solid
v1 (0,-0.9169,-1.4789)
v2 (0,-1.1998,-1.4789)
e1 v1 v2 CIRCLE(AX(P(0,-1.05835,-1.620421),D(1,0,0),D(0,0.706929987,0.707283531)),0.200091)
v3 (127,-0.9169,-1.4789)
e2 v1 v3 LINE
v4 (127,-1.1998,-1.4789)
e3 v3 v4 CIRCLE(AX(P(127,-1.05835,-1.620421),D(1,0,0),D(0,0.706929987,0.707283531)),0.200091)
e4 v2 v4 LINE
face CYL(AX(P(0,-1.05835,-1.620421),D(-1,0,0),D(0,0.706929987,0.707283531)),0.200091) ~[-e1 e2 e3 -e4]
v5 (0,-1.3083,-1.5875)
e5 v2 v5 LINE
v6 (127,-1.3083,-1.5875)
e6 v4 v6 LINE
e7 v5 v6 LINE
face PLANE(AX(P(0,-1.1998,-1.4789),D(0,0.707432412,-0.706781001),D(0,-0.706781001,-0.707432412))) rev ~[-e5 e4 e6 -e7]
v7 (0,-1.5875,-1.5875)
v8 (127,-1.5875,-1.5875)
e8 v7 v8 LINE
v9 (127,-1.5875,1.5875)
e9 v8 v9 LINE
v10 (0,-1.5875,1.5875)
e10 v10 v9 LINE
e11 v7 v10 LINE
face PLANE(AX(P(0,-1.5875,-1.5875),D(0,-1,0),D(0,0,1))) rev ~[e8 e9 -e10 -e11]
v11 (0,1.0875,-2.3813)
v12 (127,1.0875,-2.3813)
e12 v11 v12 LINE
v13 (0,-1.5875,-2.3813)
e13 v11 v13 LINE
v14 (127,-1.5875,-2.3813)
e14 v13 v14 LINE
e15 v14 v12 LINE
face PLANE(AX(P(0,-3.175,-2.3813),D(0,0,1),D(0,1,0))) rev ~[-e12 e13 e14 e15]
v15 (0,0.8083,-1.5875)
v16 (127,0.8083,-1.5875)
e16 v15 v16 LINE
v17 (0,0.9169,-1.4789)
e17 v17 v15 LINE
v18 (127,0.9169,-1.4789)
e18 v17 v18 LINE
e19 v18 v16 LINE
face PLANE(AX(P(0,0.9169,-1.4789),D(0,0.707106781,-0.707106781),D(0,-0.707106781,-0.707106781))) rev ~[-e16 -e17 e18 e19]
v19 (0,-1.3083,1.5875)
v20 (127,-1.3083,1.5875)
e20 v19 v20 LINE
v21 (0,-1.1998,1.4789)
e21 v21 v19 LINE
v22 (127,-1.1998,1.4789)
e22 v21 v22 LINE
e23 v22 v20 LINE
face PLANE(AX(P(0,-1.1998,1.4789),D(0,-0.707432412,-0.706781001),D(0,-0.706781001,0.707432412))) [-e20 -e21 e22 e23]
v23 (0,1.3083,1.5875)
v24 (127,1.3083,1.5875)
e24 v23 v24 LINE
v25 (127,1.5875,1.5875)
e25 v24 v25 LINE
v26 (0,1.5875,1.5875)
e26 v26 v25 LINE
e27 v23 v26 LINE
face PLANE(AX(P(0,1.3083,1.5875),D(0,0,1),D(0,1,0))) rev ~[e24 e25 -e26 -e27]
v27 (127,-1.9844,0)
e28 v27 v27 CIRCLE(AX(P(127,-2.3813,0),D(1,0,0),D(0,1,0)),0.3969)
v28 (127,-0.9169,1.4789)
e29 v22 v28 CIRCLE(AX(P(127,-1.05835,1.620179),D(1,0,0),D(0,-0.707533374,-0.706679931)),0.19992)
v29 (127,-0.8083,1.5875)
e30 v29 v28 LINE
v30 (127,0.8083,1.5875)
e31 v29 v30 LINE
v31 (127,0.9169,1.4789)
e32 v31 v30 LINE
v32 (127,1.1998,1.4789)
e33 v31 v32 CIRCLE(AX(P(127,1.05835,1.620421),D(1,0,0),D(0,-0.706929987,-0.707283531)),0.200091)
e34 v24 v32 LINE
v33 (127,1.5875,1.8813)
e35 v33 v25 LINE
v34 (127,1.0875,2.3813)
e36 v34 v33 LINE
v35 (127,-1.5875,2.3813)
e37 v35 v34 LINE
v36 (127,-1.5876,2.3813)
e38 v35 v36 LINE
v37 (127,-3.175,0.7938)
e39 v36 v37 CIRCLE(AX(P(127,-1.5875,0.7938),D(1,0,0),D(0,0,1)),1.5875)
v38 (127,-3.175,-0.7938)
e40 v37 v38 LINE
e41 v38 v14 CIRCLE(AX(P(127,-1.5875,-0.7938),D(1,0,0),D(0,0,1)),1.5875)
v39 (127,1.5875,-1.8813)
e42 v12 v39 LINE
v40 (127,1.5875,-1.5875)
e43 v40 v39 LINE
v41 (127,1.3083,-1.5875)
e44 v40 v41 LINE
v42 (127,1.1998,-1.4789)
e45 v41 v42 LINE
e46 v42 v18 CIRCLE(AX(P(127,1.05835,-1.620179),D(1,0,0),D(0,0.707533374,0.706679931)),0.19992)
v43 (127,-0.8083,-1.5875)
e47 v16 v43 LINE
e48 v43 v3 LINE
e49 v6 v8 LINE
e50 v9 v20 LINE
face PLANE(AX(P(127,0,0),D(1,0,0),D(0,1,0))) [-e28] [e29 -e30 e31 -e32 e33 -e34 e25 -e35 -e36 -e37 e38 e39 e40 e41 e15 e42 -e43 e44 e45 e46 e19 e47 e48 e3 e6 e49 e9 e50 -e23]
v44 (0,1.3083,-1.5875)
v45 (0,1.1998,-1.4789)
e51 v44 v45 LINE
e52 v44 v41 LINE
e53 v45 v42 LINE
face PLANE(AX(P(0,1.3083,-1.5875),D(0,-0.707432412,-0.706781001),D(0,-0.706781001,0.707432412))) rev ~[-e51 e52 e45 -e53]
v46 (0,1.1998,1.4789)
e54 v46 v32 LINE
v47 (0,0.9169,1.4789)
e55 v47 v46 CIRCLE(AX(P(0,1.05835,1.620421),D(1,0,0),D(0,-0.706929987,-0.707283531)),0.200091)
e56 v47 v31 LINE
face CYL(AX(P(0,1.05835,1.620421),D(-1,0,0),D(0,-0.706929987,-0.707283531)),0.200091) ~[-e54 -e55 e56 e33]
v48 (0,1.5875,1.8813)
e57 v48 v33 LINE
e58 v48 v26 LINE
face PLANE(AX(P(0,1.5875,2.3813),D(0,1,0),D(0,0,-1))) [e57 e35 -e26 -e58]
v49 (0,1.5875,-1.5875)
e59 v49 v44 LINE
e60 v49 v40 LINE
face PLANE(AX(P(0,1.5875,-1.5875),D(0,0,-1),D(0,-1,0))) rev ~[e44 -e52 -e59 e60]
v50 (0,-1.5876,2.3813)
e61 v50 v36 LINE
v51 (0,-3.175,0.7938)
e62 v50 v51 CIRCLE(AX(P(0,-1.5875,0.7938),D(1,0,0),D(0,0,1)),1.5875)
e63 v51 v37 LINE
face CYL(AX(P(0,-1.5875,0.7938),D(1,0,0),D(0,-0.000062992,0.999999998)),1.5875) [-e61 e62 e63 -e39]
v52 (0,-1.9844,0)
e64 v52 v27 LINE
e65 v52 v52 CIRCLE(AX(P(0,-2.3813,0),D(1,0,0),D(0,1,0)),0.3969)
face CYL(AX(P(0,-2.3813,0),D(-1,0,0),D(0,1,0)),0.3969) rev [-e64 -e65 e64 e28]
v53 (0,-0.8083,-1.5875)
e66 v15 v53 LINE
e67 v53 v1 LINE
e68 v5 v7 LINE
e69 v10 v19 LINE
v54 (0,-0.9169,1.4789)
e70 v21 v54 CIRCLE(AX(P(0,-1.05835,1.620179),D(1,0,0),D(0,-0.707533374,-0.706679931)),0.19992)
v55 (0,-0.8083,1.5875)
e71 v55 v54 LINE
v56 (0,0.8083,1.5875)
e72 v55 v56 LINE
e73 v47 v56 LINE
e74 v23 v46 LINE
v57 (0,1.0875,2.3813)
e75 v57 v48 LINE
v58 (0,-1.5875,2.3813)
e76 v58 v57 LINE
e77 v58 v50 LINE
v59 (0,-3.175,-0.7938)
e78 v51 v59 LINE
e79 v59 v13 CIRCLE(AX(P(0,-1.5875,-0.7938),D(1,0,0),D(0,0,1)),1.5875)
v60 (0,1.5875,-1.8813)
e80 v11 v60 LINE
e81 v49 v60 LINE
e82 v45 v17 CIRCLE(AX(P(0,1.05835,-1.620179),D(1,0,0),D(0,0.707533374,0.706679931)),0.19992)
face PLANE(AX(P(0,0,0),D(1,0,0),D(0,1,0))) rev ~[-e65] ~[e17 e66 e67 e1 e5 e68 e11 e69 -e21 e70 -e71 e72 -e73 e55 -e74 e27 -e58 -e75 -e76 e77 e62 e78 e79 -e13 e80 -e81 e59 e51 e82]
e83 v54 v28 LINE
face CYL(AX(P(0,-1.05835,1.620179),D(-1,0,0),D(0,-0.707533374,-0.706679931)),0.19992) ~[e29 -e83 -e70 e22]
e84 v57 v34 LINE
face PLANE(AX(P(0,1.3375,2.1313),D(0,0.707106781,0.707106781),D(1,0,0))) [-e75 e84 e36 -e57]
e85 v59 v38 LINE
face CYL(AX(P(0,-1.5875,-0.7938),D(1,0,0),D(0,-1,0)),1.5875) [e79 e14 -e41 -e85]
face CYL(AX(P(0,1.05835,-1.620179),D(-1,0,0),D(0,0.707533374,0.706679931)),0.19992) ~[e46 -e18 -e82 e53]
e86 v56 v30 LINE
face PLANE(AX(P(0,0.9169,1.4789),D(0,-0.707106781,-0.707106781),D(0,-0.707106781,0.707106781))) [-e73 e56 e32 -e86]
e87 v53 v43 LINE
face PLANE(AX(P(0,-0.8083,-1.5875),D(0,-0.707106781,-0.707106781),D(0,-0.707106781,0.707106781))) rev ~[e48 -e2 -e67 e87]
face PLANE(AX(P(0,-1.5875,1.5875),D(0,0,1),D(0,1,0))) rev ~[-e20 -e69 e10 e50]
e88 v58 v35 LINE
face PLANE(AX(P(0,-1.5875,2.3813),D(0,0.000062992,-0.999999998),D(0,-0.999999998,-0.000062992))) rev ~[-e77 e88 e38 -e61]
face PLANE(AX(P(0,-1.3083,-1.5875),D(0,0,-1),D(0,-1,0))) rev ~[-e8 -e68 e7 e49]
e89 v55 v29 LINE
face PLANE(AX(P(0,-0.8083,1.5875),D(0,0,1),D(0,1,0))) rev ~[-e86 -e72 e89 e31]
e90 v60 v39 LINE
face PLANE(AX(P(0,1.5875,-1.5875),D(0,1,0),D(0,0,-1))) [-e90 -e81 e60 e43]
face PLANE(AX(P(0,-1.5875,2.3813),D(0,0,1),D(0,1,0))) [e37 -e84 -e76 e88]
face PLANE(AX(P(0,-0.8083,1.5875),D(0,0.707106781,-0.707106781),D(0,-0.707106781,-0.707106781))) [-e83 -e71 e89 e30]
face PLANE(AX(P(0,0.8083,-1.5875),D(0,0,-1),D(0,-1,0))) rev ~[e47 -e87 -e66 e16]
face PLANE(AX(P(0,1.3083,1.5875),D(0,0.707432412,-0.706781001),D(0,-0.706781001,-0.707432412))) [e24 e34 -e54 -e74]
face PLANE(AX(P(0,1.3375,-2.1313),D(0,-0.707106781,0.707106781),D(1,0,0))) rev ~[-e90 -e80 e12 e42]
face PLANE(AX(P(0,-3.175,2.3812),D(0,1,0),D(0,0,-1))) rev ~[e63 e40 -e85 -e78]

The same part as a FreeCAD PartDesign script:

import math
import FreeCAD as App
import Part
import Sketcher
Q = App.Units.Quantity


def edges_at(feature, points):
    """Names of the edges that pass closest to the given points."""
    edges = feature.Shape.Edges
    near = lambda p: min(range(len(edges)), key=lambda i: edges[i].distToShape(Part.Vertex(*p))[0])
    return sorted({f"Edge{near(p) + 1}" for p in points})

doc = App.newDocument("Part")
body = doc.addObject("PartDesign::Body", "Body")

sketch1 = doc.addObject("Sketcher::SketchObject", "Sketch")
body.addObject(sketch1)
sketch1.AttachmentSupport = (doc.YZ_Plane, [""])
sketch1.MapMode = "FlatFace"
sketch1.addGeometry([
    Part.LineSegment(App.Vector(1.59, 2.38, 0), App.Vector(-1.59, 2.38, 0)),
    Part.LineSegment(App.Vector(-1.59, 2.38, 0), App.Vector(-3.17, 2.38, 0)),
    Part.LineSegment(App.Vector(-3.17, 2.38, 0), App.Vector(-3.17, -2.38, 0)),
    Part.LineSegment(App.Vector(-3.17, -2.38, 0), App.Vector(1.59, -2.38, 0)),
    Part.LineSegment(App.Vector(1.59, -2.38, 0), App.Vector(1.59, -1.59, 0)),
    Part.LineSegment(App.Vector(1.59, -1.59, 0), App.Vector(1.31, -1.59, 0)),
    Part.LineSegment(App.Vector(1.31, -1.59, 0), App.Vector(1.2, -1.48, 0)),
    Part.ArcOfCircle(Part.Circle(App.Vector(1.06, -1.62, 0), App.Vector(0, 0, 1), 0.2), math.radians(45), math.radians(135)),
    Part.LineSegment(App.Vector(0.92, -1.48, 0), App.Vector(0.81, -1.59, 0)),
    Part.LineSegment(App.Vector(0.81, -1.59, 0), App.Vector(-0.81, -1.59, 0)),
    Part.LineSegment(App.Vector(-0.81, -1.59, 0), App.Vector(-0.92, -1.48, 0)),
    Part.ArcOfCircle(Part.Circle(App.Vector(-1.06, -1.62, 0), App.Vector(0, 0, 1), 0.2), math.radians(45), math.radians(135)),
    Part.LineSegment(App.Vector(-1.2, -1.48, 0), App.Vector(-1.31, -1.59, 0)),
    Part.LineSegment(App.Vector(-1.31, -1.59, 0), App.Vector(-1.59, -1.59, 0)),
    Part.LineSegment(App.Vector(-1.59, -1.59, 0), App.Vector(-1.59, 1.59, 0)),
    Part.LineSegment(App.Vector(-1.59, 1.59, 0), App.Vector(-1.31, 1.59, 0)),
    Part.LineSegment(App.Vector(-1.31, 1.59, 0), App.Vector(-1.2, 1.48, 0)),
    Part.ArcOfCircle(Part.Circle(App.Vector(-1.06, 1.62, 0), App.Vector(0, 0, 1), 0.2), math.radians(-135), math.radians(-45)),
    Part.LineSegment(App.Vector(-0.92, 1.48, 0), App.Vector(-0.81, 1.59, 0)),
    Part.LineSegment(App.Vector(-0.81, 1.59, 0), App.Vector(0.81, 1.59, 0)),
    Part.LineSegment(App.Vector(0.81, 1.59, 0), App.Vector(0.92, 1.48, 0)),
    Part.ArcOfCircle(Part.Circle(App.Vector(1.06, 1.62, 0), App.Vector(0, 0, 1), 0.2), math.radians(-135), math.radians(-45)),
    Part.LineSegment(App.Vector(1.2, 1.48, 0), App.Vector(1.31, 1.59, 0)),
    Part.LineSegment(App.Vector(1.31, 1.59, 0), App.Vector(1.59, 1.59, 0)),
    Part.LineSegment(App.Vector(1.59, 1.59, 0), App.Vector(1.59, 2.38, 0)),
    Part.Circle(App.Vector(-2.38, 0, 0), App.Vector(0, 0, 1), 0.4),
], False)
sketch1.addConstraint([
    Sketcher.Constraint("Coincident", 0, 2, 1, 1),
    Sketcher.Constraint("Coincident", 1, 2, 2, 1),
    Sketcher.Constraint("Coincident", 2, 2, 3, 1),
    Sketcher.Constraint("Coincident", 3, 2, 4, 1),
    Sketcher.Constraint("Coincident", 4, 2, 5, 1),
    Sketcher.Constraint("Coincident", 5, 2, 6, 1),
    Sketcher.Constraint("Tangent", 6, 2, 7, 1),
    Sketcher.Constraint("Tangent", 7, 2, 8, 1),
    Sketcher.Constraint("Coincident", 8, 2, 9, 1),
    Sketcher.Constraint("Coincident", 9, 2, 10, 1),
    Sketcher.Constraint("Tangent", 10, 2, 11, 1),
    Sketcher.Constraint("Tangent", 11, 2, 12, 1),
    Sketcher.Constraint("Coincident", 12, 2, 13, 1),
    Sketcher.Constraint("Coincident", 13, 2, 14, 1),
    Sketcher.Constraint("Coincident", 14, 2, 15, 1),
    Sketcher.Constraint("Coincident", 15, 2, 16, 1),
    Sketcher.Constraint("Tangent", 16, 2, 17, 1),
    Sketcher.Constraint("Tangent", 17, 2, 18, 1),
    Sketcher.Constraint("Coincident", 18, 2, 19, 1),
    Sketcher.Constraint("Coincident", 19, 2, 20, 1),
    Sketcher.Constraint("Tangent", 20, 2, 21, 1),
    Sketcher.Constraint("Tangent", 21, 2, 22, 1),
    Sketcher.Constraint("Coincident", 22, 2, 23, 1),
    Sketcher.Constraint("Coincident", 23, 2, 24, 1),
    Sketcher.Constraint("Coincident", 24, 2, 0, 1),
    Sketcher.Constraint("Horizontal", 0),
    Sketcher.Constraint("Horizontal", 1),
    Sketcher.Constraint("Vertical", 2),
    Sketcher.Constraint("Horizontal", 3),
    Sketcher.Constraint("Vertical", 4),
    Sketcher.Constraint("Horizontal", 5),
    Sketcher.Constraint("Horizontal", 9),
    Sketcher.Constraint("Horizontal", 13),
    Sketcher.Constraint("Vertical", 14),
    Sketcher.Constraint("Horizontal", 15),
    Sketcher.Constraint("Horizontal", 19),
    Sketcher.Constraint("Horizontal", 23),
    Sketcher.Constraint("Vertical", 24),
    Sketcher.Constraint("Equal", 7, 11),
    Sketcher.Constraint("Equal", 11, 17),
    Sketcher.Constraint("Equal", 17, 21),
    Sketcher.Constraint("Symmetric", 7, 3, 17, 3, -1, 1),
    Sketcher.Constraint("Symmetric", 11, 3, 21, 3, -1, 1),
    Sketcher.Constraint("Symmetric", 0, 2, 3, 2, -1, 1),
    Sketcher.Constraint("Symmetric", 4, 2, 14, 2, -1, 1),
    Sketcher.Constraint("Symmetric", 8, 2, 18, 2, -1, 1),
    Sketcher.Constraint("Symmetric", 12, 2, 22, 2, -1, 1),
    Sketcher.Constraint("Symmetric", 7, 3, 11, 3, -2),
    Sketcher.Constraint("Symmetric", 5, 2, 12, 2, -2),
    Sketcher.Constraint("PointOnObject", 25, 3, -1),
    Sketcher.Constraint("Perpendicular", 6, 8),
    Sketcher.Constraint("Perpendicular", 8, 10),
    Sketcher.Constraint("Perpendicular", 10, 12),
    Sketcher.Constraint("Parallel", 10, 16),
    Sketcher.Constraint("Perpendicular", 18, 20),
    Sketcher.Constraint("Horizontal", 5, 2, 8, 2),
    Sketcher.Constraint("Vertical", 4, 2, 23, 2),
    Sketcher.Constraint("Equal", 3, 2),
    Sketcher.Constraint("Equal", 0, 14),
    Sketcher.Constraint("Diameter", 25, Q("0.031252 in")),
    Sketcher.Constraint("DistanceX", 0, 2, 0, 1, Q("0.125 in")),
    Sketcher.Constraint("DistanceX", 1, 2, 1, 1, Q("0.0625 in")),
    Sketcher.Constraint("Radius", 7, 0.2),
    Sketcher.Constraint("DistanceX", 25, 3, 0, 2, Q("0.031252 in")),
    Sketcher.Constraint("DistanceX", 5, 2, 5, 1, Q("0.011 in")),
    Sketcher.Constraint("DistanceX", 8, 2, 5, 2, 0.5),
])
pad1 = doc.addObject("PartDesign::Pad", "Pad")
body.addObject(pad1)
pad1.Profile = sketch1
pad1.Length = Q("5 in")
doc.recompute()

chamfer = doc.addObject("PartDesign::Chamfer", "Chamfer")
body.addObject(chamfer)
chamfer.Base = (pad1, edges_at(pad1, [(63.5, 1.587, 2.381), (63.5, 1.587, -2.381)]))
chamfer.Size = 0.5
doc.recompute()

fillet = doc.addObject("PartDesign::Fillet", "Fillet")
body.addObject(fillet)
fillet.Base = (chamfer, edges_at(chamfer, [(63.5, -3.175, 2.381), (63.5, -3.175, -2.381)]))
fillet.Radius = Q("0.0625 in")

doc.recompute()
